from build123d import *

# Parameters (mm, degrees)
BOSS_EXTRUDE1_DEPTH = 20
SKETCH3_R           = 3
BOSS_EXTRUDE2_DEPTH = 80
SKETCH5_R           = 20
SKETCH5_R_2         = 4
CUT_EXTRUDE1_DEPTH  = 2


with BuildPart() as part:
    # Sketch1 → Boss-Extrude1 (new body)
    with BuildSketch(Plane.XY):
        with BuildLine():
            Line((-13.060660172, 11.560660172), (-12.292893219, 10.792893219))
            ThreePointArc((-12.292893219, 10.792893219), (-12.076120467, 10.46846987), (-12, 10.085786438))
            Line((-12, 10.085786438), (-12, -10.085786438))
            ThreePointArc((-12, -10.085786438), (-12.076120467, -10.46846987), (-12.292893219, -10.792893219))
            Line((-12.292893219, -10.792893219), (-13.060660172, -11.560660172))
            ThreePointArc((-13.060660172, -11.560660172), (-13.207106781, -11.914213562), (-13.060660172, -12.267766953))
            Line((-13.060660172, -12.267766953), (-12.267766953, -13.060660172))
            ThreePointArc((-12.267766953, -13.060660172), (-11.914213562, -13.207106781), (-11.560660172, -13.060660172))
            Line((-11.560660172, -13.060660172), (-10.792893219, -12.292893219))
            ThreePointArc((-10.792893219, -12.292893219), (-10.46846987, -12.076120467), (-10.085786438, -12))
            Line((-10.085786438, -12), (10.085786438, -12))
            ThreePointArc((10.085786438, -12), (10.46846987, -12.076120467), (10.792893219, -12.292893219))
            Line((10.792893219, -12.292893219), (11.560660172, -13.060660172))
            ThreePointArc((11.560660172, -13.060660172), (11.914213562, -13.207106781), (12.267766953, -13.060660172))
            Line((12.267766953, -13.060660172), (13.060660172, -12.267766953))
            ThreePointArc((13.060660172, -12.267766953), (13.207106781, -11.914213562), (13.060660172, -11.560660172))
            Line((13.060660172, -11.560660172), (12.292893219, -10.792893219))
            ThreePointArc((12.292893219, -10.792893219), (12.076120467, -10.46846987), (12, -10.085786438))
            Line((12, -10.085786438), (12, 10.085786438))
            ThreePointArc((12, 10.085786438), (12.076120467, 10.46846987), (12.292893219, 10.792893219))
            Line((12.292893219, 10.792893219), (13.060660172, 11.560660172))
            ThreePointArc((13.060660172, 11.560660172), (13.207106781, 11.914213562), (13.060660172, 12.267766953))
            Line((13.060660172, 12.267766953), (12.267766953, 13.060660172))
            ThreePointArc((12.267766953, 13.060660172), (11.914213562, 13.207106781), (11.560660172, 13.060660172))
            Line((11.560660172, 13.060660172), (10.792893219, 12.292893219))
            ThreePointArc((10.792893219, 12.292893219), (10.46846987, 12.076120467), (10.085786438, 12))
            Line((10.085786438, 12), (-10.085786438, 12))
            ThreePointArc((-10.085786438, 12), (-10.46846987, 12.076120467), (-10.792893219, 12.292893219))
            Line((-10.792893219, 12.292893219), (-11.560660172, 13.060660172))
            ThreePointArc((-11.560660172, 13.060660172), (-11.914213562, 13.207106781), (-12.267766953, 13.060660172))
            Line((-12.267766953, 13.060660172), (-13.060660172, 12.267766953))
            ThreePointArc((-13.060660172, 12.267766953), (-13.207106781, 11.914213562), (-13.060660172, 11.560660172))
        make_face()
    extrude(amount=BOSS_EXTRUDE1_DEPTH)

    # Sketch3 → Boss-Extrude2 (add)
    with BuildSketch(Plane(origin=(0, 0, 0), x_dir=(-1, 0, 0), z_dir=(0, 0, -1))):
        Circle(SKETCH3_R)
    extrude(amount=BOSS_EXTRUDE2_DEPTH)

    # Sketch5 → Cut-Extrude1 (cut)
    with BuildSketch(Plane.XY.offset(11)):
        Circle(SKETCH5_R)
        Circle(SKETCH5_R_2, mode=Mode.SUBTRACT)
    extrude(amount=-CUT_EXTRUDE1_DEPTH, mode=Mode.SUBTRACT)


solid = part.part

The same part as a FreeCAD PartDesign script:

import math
import FreeCAD as App
import Part
import Sketcher

V = App.Vector
Q = App.Units.Quantity

doc = App.newDocument("Part")
params = doc.addObject("Spreadsheet::Sheet", "Params")
for row, (alias, value) in enumerate([
    ("sketch1_radius", "1 mm"),
    ("sketch1_radius2", "0.5 mm"),
    ("pad1_length", "20 mm"),
    ("sketch2_diameter", "6 mm"),
    ("pad2_length", "80 mm"),
    ("sketch3_diameter", "40 mm"),
    ("sketch3_diameter2", "8 mm"),
    ("pocket1_length", "2 mm"),
], start=1):
    params.set(f"A{row}", alias)
    params.set(f"B{row}", "=" + value)
    params.setAlias(f"B{row}", alias)

body = doc.addObject("PartDesign::Body", "Body")

# Sketch on XY plane
sketch1 = body.newObject("Sketcher::SketchObject", "Sketch")
sketch1.AttachmentSupport = (doc.getObject("XY_Plane"), [""])
sketch1.MapMode = "FlatFace"
sketch1.addGeometry([
    Part.LineSegment(V(-13.1, 11.6, 0), V(-12.3, 10.8, 0)),  # 0
    Part.ArcOfCircle(Part.Circle(V(-13, 10.1, 0), V(0, 0, 1), 1), math.radians(0), math.radians(45)),  # 1
    Part.LineSegment(V(-12, 10.1, 0), V(-12, -10.1, 0)),  # 2
    Part.ArcOfCircle(Part.Circle(V(-13, -10.1, 0), V(0, 0, 1), 1), math.radians(-45), math.radians(0)),  # 3
    Part.LineSegment(V(-12.3, -10.8, 0), V(-13.1, -11.6, 0)),  # 4
    Part.ArcOfCircle(Part.Circle(V(-12.7, -11.9, 0), V(0, 0, 1), 0.5), math.radians(135), math.radians(225)),  # 5
    Part.LineSegment(V(-13.1, -12.3, 0), V(-12.3, -13.1, 0)),  # 6
    Part.ArcOfCircle(Part.Circle(V(-11.9, -12.7, 0), V(0, 0, 1), 0.5), math.radians(-135), math.radians(-45)),  # 7
    Part.LineSegment(V(-11.6, -13.1, 0), V(-10.8, -12.3, 0)),  # 8
    Part.ArcOfCircle(Part.Circle(V(-10.1, -13, 0), V(0, 0, 1), 1), math.radians(90), math.radians(135)),  # 9
    Part.LineSegment(V(-10.1, -12, 0), V(10.1, -12, 0)),  # 10
    Part.ArcOfCircle(Part.Circle(V(10.1, -13, 0), V(0, 0, 1), 1), math.radians(45), math.radians(90)),  # 11
    Part.LineSegment(V(10.8, -12.3, 0), V(11.6, -13.1, 0)),  # 12
    Part.ArcOfCircle(Part.Circle(V(11.9, -12.7, 0), V(0, 0, 1), 0.5), math.radians(-135), math.radians(-45)),  # 13
    Part.LineSegment(V(12.3, -13.1, 0), V(13.1, -12.3, 0)),  # 14
    Part.ArcOfCircle(Part.Circle(V(12.7, -11.9, 0), V(0, 0, 1), 0.5), math.radians(-45), math.radians(45)),  # 15
    Part.LineSegment(V(13.1, -11.6, 0), V(12.3, -10.8, 0)),  # 16
    Part.ArcOfCircle(Part.Circle(V(13, -10.1, 0), V(0, 0, 1), 1), math.radians(180), math.radians(225)),  # 17
    Part.LineSegment(V(12, -10.1, 0), V(12, 10.1, 0)),  # 18
    Part.ArcOfCircle(Part.Circle(V(13, 10.1, 0), V(0, 0, 1), 1), math.radians(135), math.radians(180)),  # 19
    Part.LineSegment(V(12.3, 10.8, 0), V(13.1, 11.6, 0)),  # 20
    Part.ArcOfCircle(Part.Circle(V(12.7, 11.9, 0), V(0, 0, 1), 0.5), math.radians(-45), math.radians(45)),  # 21
    Part.LineSegment(V(13.1, 12.3, 0), V(12.3, 13.1, 0)),  # 22
    Part.ArcOfCircle(Part.Circle(V(11.9, 12.7, 0), V(0, 0, 1), 0.5), math.radians(45), math.radians(135)),  # 23
    Part.LineSegment(V(11.6, 13.1, 0), V(10.8, 12.3, 0)),  # 24
    Part.ArcOfCircle(Part.Circle(V(10.1, 13, 0), V(0, 0, 1), 1), math.radians(-90), math.radians(-45)),  # 25
    Part.LineSegment(V(10.1, 12, 0), V(-10.1, 12, 0)),  # 26
    Part.ArcOfCircle(Part.Circle(V(-10.1, 13, 0), V(0, 0, 1), 1), math.radians(-135), math.radians(-90)),  # 27
    Part.LineSegment(V(-10.8, 12.3, 0), V(-11.6, 13.1, 0)),  # 28
    Part.ArcOfCircle(Part.Circle(V(-11.9, 12.7, 0), V(0, 0, 1), 0.5), math.radians(45), math.radians(135)),  # 29
    Part.LineSegment(V(-12.3, 13.1, 0), V(-13.1, 12.3, 0)),  # 30
    Part.ArcOfCircle(Part.Circle(V(-12.7, 11.9, 0), V(0, 0, 1), 0.5), math.radians(135), math.radians(225)),  # 31
], False)
sketch1.addConstraint([
    Sketcher.Constraint("Tangent", 0, 2, 1, 2),
    Sketcher.Constraint("Tangent", 1, 1, 2, 1),
    Sketcher.Constraint("Tangent", 2, 2, 3, 2),
    Sketcher.Constraint("Tangent", 3, 1, 4, 1),
    Sketcher.Constraint("Tangent", 4, 2, 5, 1),
    Sketcher.Constraint("Tangent", 5, 2, 6, 1),
    Sketcher.Constraint("Tangent", 6, 2, 7, 1),
    Sketcher.Constraint("Tangent", 7, 2, 8, 1),
    Sketcher.Constraint("Tangent", 8, 2, 9, 2),
    Sketcher.Constraint("Tangent", 9, 1, 10, 1),
    Sketcher.Constraint("Tangent", 10, 2, 11, 2),
    Sketcher.Constraint("Tangent", 11, 1, 12, 1),
    Sketcher.Constraint("Tangent", 12, 2, 13, 1),
    Sketcher.Constraint("Tangent", 13, 2, 14, 1),
    Sketcher.Constraint("Tangent", 14, 2, 15, 1),
    Sketcher.Constraint("Tangent", 15, 2, 16, 1),
    Sketcher.Constraint("Tangent", 16, 2, 17, 2),
    Sketcher.Constraint("Tangent", 17, 1, 18, 1),
    Sketcher.Constraint("Tangent", 18, 2, 19, 2),
    Sketcher.Constraint("Tangent", 19, 1, 20, 1),
    Sketcher.Constraint("Tangent", 20, 2, 21, 1),
    Sketcher.Constraint("Tangent", 21, 2, 22, 1),
    Sketcher.Constraint("Tangent", 22, 2, 23, 1),
    Sketcher.Constraint("Tangent", 23, 2, 24, 1),
    Sketcher.Constraint("Tangent", 24, 2, 25, 2),
    Sketcher.Constraint("Tangent", 25, 1, 26, 1),
    Sketcher.Constraint("Tangent", 26, 2, 27, 2),
    Sketcher.Constraint("Tangent", 27, 1, 28, 1),
    Sketcher.Constraint("Tangent", 28, 2, 29, 1),
    Sketcher.Constraint("Tangent", 29, 2, 30, 1),
    Sketcher.Constraint("Tangent", 30, 2, 31, 1),
    Sketcher.Constraint("Tangent", 31, 2, 0, 1),
    Sketcher.Constraint("Vertical", 2),
    Sketcher.Constraint("Horizontal", 10),
    Sketcher.Constraint("Vertical", 18),
    Sketcher.Constraint("Horizontal", 26),
    Sketcher.Constraint("Equal", 1, 3),
    Sketcher.Constraint("Equal", 5, 7),
    Sketcher.Constraint("Equal", 3, 9),
    Sketcher.Constraint("Equal", 9, 11),
    Sketcher.Constraint("Equal", 7, 13),
    Sketcher.Constraint("Equal", 13, 15),
    Sketcher.Constraint("Equal", 11, 17),
    Sketcher.Constraint("Equal", 17, 19),
    Sketcher.Constraint("Equal", 15, 21),
    Sketcher.Constraint("Equal", 21, 23),
    Sketcher.Constraint("Equal", 19, 25),
    Sketcher.Constraint("Equal", 25, 27),
    Sketcher.Constraint("Equal", 23, 29),
    Sketcher.Constraint("Equal", 29, 31),
    Sketcher.Constraint("Symmetric", 1, 3, 17, 3, -1, 1),
    Sketcher.Constraint("Symmetric", 5, 3, 21, 3, -1, 1),
    Sketcher.Constraint("Symmetric", 7, 3, 23, 3, -1, 1),
    Sketcher.Constraint("Symmetric", 9, 3, 25, 3, -1, 1),
    Sketcher.Constraint("Symmetric", 13, 3, 29, 3, -1, 1),
    Sketcher.Constraint("Symmetric", 15, 3, 31, 3, -1, 1),
    Sketcher.Constraint("Symmetric", 7, 3, 13, 3, -2),
    Sketcher.Constraint("Symmetric", 5, 3, 15, 3, -2),
    Sketcher.Constraint("Perpendicular", 0, 4),
    Sketcher.Constraint("Perpendicular", 4, 6),
    Sketcher.Constraint("Perpendicular", 6, 8),
    Sketcher.Constraint("Perpendicular", 8, 12),
    Sketcher.Constraint("Perpendicular", 12, 14),
    Sketcher.Constraint("Perpendicular", 16, 20),
    Sketcher.Constraint("Perpendicular", 24, 28),
    Sketcher.Constraint("Equal", 26, 2),
    Sketcher.Constraint("Equal", 4, 8),
    Sketcher.Constraint("Radius", 1, Q("1 mm")),
    Sketcher.Constraint("Radius", 5, Q("0.5 mm")),
    Sketcher.Constraint("DistanceX", 1, 3, -1, 1, Q("13 mm")),
    Sketcher.Constraint("DistanceY", 5, 3, 1, 3, Q("22 mm")),
    Sketcher.Constraint("DistanceY", 6, 2, 4, 2, Q("1.5 mm")),
])
sketch1.setExpression("Constraints[67]", "Params.sketch1_radius")
sketch1.setExpression("Constraints[68]", "Params.sketch1_radius2")
pad1 = body.newObject("PartDesign::Pad", "Pad")
pad1.Profile = sketch1
pad1.setExpression("Length", "Params.pad1_length")

# Sketch on XY plane
sketch2 = body.newObject("Sketcher::SketchObject", "Sketch001")
sketch2.AttachmentSupport = (doc.getObject("XY_Plane"), [""])
sketch2.MapMode = "FlatFace"
sketch2.addGeometry(Part.Circle(V(0, 0, 0), V(0, 0, 1), 3), False)
sketch2.addConstraint([
    Sketcher.Constraint("Coincident", 0, 3, -1, 1),
    Sketcher.Constraint("Diameter", 0, Q("6 mm")),
])
sketch2.setExpression("Constraints[1]", "Params.sketch2_diameter")
pad2 = body.newObject("PartDesign::Pad", "Pad001")
pad2.Profile = sketch2
pad2.setExpression("Length", "Params.pad2_length")
pad2.Reversed = True

# Sketch on XY plane
sketch3 = body.newObject("Sketcher::SketchObject", "Sketch002")
sketch3.AttachmentSupport = (doc.getObject("XY_Plane"), [""])
sketch3.MapMode = "FlatFace"
sketch3.AttachmentOffset = App.Placement(V(0, 0, 11), App.Rotation())
sketch3.addGeometry([
    Part.Circle(V(0, 0, 0), V(0, 0, 1), 20),
    Part.Circle(V(0, 0, 0), V(0, 0, 1), 4),
], False)
sketch3.addConstraint([
    Sketcher.Constraint("Coincident", 0, 3, -1, 1),
    Sketcher.Constraint("Coincident", 1, 3, -1, 1),
    Sketcher.Constraint("Diameter", 0, Q("40 mm")),
    Sketcher.Constraint("Diameter", 1, Q("8 mm")),
])
sketch3.setExpression("Constraints[2]", "Params.sketch3_diameter")
sketch3.setExpression("Constraints[3]", "Params.sketch3_diameter2")
pocket1 = body.newObject("PartDesign::Pocket", "Pocket")
pocket1.Profile = sketch3
pocket1.setExpression("Length", "Params.pocket1_length")

doc.recompute()
